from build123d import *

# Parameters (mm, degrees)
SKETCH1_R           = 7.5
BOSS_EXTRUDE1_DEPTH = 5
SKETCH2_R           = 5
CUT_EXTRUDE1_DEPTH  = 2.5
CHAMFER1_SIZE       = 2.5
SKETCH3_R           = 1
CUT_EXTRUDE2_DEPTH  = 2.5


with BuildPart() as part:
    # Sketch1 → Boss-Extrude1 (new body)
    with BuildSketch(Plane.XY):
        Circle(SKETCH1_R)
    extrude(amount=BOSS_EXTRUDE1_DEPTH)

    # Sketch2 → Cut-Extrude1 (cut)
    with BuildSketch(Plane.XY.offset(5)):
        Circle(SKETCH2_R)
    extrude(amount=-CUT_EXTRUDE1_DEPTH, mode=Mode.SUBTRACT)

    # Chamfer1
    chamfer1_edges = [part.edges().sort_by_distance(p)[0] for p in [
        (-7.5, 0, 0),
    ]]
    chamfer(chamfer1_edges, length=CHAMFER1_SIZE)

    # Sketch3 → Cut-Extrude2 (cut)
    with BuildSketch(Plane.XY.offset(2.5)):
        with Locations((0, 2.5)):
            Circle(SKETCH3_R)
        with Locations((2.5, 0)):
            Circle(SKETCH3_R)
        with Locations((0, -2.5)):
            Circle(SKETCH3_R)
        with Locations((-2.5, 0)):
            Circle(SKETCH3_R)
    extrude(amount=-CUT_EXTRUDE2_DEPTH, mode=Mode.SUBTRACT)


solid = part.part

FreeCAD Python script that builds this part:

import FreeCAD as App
import Part
import Sketcher

V = App.Vector
Q = App.Units.Quantity


def edges_at(feature, points):
    """Names of the edges that pass closest to the given points."""
    edges = feature.Shape.Edges
    near = lambda p: min(range(len(edges)), key=lambda i: edges[i].distToShape(Part.Vertex(*p))[0])
    return sorted({f"Edge{near(p) + 1}" for p in points})

doc = App.newDocument("Part")
body = doc.addObject("PartDesign::Body", "Body")

# Sketch on XY plane
sketch1 = doc.addObject("Sketcher::SketchObject", "Sketch")
body.addObject(sketch1)
sketch1.AttachmentSupport = (doc.XY_Plane, [""])
sketch1.MapMode = "FlatFace"
sketch1.addGeometry(Part.Circle(V(0, 0, 0), V(0, 0, 1), 8), False)
sketch1.addConstraint([
    Sketcher.Constraint("Coincident", 0, 3, -1, 1),
    Sketcher.Constraint("Diameter", 0, Q("15 mm")),
])
pad1 = doc.addObject("PartDesign::Pad", "Pad")
body.addObject(pad1)
pad1.Profile = sketch1
pad1.Length = 5

# Sketch on XY plane
sketch2 = doc.addObject("Sketcher::SketchObject", "Sketch001")
body.addObject(sketch2)
sketch2.AttachmentSupport = (doc.XY_Plane, [""])
sketch2.MapMode = "FlatFace"
sketch2.AttachmentOffset = App.Placement(V(0, 0, 5), App.Rotation())
sketch2.addGeometry(Part.Circle(V(0, 0, 0), V(0, 0, 1), 5), False)
sketch2.addConstraint([
    Sketcher.Constraint("Coincident", 0, 3, -1, 1),
    Sketcher.Constraint("Diameter", 0, Q("10 mm")),
])
pocket1 = doc.addObject("PartDesign::Pocket", "Pocket")
body.addObject(pocket1)
pocket1.Profile = sketch2
pocket1.Length = 2.5
doc.recompute()

chamfer = doc.addObject("PartDesign::Chamfer", "Chamfer")
body.addObject(chamfer)
chamfer.Base = (pocket1, edges_at(pocket1, [(-7.5, 0, 0)]))
chamfer.Size = 2.5

# Sketch on XY plane
sketch3 = doc.addObject("Sketcher::SketchObject", "Sketch002")
body.addObject(sketch3)
sketch3.AttachmentSupport = (doc.XY_Plane, [""])
sketch3.MapMode = "FlatFace"
sketch3.AttachmentOffset = App.Placement(V(0, 0, 2.5), App.Rotation())
sketch3.addGeometry([
    Part.Circle(V(0, 2.5, 0), V(0, 0, 1), 1),
    Part.Circle(V(2.5, 0, 0), V(0, 0, 1), 1),
    Part.Circle(V(0, -2.5, 0), V(0, 0, 1), 1),
    Part.Circle(V(-2.5, 0, 0), V(0, 0, 1), 1),
], False)
sketch3.addConstraint([
    Sketcher.Constraint("Equal", 0, 1),
    Sketcher.Constraint("Equal", 1, 2),
    Sketcher.Constraint("Equal", 2, 3),
    Sketcher.Constraint("Symmetric", 0, 3, 2, 3, -1, 1),
    Sketcher.Constraint("Symmetric", 1, 3, 3, 3, -1, 1),
    Sketcher.Constraint("PointOnObject", 0, 3, -2),
    Sketcher.Constraint("PointOnObject", 1, 3, -1),
    Sketcher.Constraint("Diameter", 0, Q("2 mm")),
    Sketcher.Constraint("DistanceY", 2, 3, 0, 3, Q("5 mm")),
    Sketcher.Constraint("DistanceX", 3, 3, 1, 3, Q("5 mm")),
])
pocket2 = doc.addObject("PartDesign::Pocket", "Pocket001")
body.addObject(pocket2)
pocket2.Profile = sketch3
pocket2.Length = 2.5

doc.recompute()
